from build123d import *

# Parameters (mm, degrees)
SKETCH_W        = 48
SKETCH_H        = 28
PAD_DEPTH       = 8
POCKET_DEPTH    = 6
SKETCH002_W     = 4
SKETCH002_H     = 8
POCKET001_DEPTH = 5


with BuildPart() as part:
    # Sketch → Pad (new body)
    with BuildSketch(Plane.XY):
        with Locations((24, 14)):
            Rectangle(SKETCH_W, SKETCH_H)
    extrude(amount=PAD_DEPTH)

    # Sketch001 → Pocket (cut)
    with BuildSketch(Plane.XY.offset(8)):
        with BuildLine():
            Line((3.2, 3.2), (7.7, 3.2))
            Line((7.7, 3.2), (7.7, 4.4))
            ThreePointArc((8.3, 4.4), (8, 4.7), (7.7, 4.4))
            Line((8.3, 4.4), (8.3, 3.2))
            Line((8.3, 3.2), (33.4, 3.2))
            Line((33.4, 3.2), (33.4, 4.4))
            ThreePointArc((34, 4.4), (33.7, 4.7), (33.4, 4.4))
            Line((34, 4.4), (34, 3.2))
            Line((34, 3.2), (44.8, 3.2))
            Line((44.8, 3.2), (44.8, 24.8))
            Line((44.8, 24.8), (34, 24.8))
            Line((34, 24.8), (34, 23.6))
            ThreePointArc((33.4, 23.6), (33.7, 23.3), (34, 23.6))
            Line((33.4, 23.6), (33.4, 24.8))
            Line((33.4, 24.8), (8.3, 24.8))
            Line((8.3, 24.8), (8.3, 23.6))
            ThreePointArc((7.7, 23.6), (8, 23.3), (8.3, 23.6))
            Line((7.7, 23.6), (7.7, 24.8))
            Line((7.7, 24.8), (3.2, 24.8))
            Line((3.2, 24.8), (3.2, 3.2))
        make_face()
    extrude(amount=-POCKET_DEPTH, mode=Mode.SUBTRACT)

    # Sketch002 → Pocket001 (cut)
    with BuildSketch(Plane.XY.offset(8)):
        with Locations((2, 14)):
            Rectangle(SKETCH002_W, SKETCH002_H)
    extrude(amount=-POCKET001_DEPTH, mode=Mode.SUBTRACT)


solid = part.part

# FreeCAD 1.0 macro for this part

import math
import FreeCAD as App
import Part
import Sketcher

V = App.Vector
Q = App.Units.Quantity


def add_polygon(sketch, points):
    """Adds a closed chain of lines whose ends are joined by coincident constraints."""
    first, n = sketch.GeometryCount, len(points)
    for a, b in zip(points, points[1:] + points[:1]):
        sketch.addGeometry(Part.LineSegment(App.Vector(*a, 0), App.Vector(*b, 0)), False)
    for i in range(n):
        sketch.addConstraint(Sketcher.Constraint("Coincident", first + i, 2, first + (i + 1) % n, 1))

doc = App.newDocument("Part")
body = doc.addObject("PartDesign::Body", "Body")

# Sketch on XY plane
sketch1 = doc.addObject("Sketcher::SketchObject", "Sketch")
body.addObject(sketch1)
sketch1.AttachmentSupport = (doc.XY_Plane, [""])
sketch1.MapMode = "FlatFace"
add_polygon(sketch1, [(0, 28), (0, 0), (48, 0), (48, 28)])  # lines 0-3
sketch1.addConstraint(Sketcher.Constraint("Vertical", 0))
sketch1.addConstraint(Sketcher.Constraint("Horizontal", 1))
sketch1.addConstraint(Sketcher.Constraint("Vertical", 2))
sketch1.addConstraint(Sketcher.Constraint("Horizontal", 3))
sketch1.addConstraint(Sketcher.Constraint("Coincident", 0, 2, -1, 1))
sketch1.addConstraint(Sketcher.Constraint("DistanceX", 1, 1, 1, 2, Q("48 mm")))
sketch1.addConstraint(Sketcher.Constraint("DistanceY", 0, 2, 0, 1, Q("28 mm")))
pad1 = doc.addObject("PartDesign::Pad", "Pad")
body.addObject(pad1)
pad1.Profile = sketch1
pad1.Length = 8

# Sketch on XY plane
sketch2 = doc.addObject("Sketcher::SketchObject", "Sketch001")
body.addObject(sketch2)
sketch2.AttachmentSupport = (doc.XY_Plane, [""])
sketch2.MapMode = "FlatFace"
sketch2.AttachmentOffset = App.Placement(V(0, 0, 8), App.Rotation())
sketch2.addGeometry(Part.LineSegment(V(3.2, 3.2, 0), V(7.7, 3.2, 0)), False)
sketch2.addGeometry(Part.LineSegment(V(7.7, 3.2, 0), V(7.7, 4.4, 0)), False)
sketch2.addGeometry(Part.ArcOfCircle(Part.Circle(V(8, 4.4, 0), V(0, 0, 1), 0.3), math.radians(0), math.radians(180)), False)
sketch2.addGeometry(Part.LineSegment(V(8.3, 4.4, 0), V(8.3, 3.2, 0)), False)
sketch2.addGeometry(Part.LineSegment(V(8.3, 3.2, 0), V(33.4, 3.2, 0)), False)
sketch2.addGeometry(Part.LineSegment(V(33.4, 3.2, 0), V(33.4, 4.4, 0)), False)
sketch2.addGeometry(Part.ArcOfCircle(Part.Circle(V(33.7, 4.4, 0), V(0, 0, 1), 0.3), math.radians(0), math.radians(180)), False)
sketch2.addGeometry(Part.LineSegment(V(34, 4.4, 0), V(34, 3.2, 0)), False)
sketch2.addGeometry(Part.LineSegment(V(34, 3.2, 0), V(44.8, 3.2, 0)), False)
sketch2.addGeometry(Part.LineSegment(V(44.8, 3.2, 0), V(44.8, 24.8, 0)), False)
sketch2.addGeometry(Part.LineSegment(V(44.8, 24.8, 0), V(34, 24.8, 0)), False)
sketch2.addGeometry(Part.LineSegment(V(34, 24.8, 0), V(34, 23.6, 0)), False)
sketch2.addGeometry(Part.ArcOfCircle(Part.Circle(V(33.7, 23.6, 0), V(0, 0, 1), 0.3), math.radians(180), math.radians(360)), False)
sketch2.addGeometry(Part.LineSegment(V(33.4, 23.6, 0), V(33.4, 24.8, 0)), False)
sketch2.addGeometry(Part.LineSegment(V(33.4, 24.8, 0), V(8.3, 24.8, 0)), False)
sketch2.addGeometry(Part.LineSegment(V(8.3, 24.8, 0), V(8.3, 23.6, 0)), False)
sketch2.addGeometry(Part.ArcOfCircle(Part.Circle(V(8, 23.6, 0), V(0, 0, 1), 0.3), math.radians(180), math.radians(360)), False)
sketch2.addGeometry(Part.LineSegment(V(7.7, 23.6, 0), V(7.7, 24.8, 0)), False)
sketch2.addGeometry(Part.LineSegment(V(7.7, 24.8, 0), V(3.2, 24.8, 0)), False)
sketch2.addGeometry(Part.LineSegment(V(3.2, 24.8, 0), V(3.2, 3.2, 0)), False)
sketch2.addConstraint(Sketcher.Constraint("Coincident", 0, 2, 1, 1))
sketch2.addConstraint(Sketcher.Constraint("Tangent", 1, 2, 2, 2))
sketch2.addConstraint(Sketcher.Constraint("Tangent", 2, 1, 3, 1))
sketch2.addConstraint(Sketcher.Constraint("Coincident", 3, 2, 4, 1))
sketch2.addConstraint(Sketcher.Constraint("Coincident", 4, 2, 5, 1))
sketch2.addConstraint(Sketcher.Constraint("Tangent", 5, 2, 6, 2))
sketch2.addConstraint(Sketcher.Constraint("Tangent", 6, 1, 7, 1))
sketch2.addConstraint(Sketcher.Constraint("Coincident", 7, 2, 8, 1))
sketch2.addConstraint(Sketcher.Constraint("Coincident", 8, 2, 9, 1))
sketch2.addConstraint(Sketcher.Constraint("Coincident", 9, 2, 10, 1))
sketch2.addConstraint(Sketcher.Constraint("Coincident", 10, 2, 11, 1))
sketch2.addConstraint(Sketcher.Constraint("Tangent", 11, 2, 12, 2))
sketch2.addConstraint(Sketcher.Constraint("Tangent", 12, 1, 13, 1))
sketch2.addConstraint(Sketcher.Constraint("Coincident", 13, 2, 14, 1))
sketch2.addConstraint(Sketcher.Constraint("Coincident", 14, 2, 15, 1))
sketch2.addConstraint(Sketcher.Constraint("Tangent", 15, 2, 16, 2))
sketch2.addConstraint(Sketcher.Constraint("Tangent", 16, 1, 17, 1))
sketch2.addConstraint(Sketcher.Constraint("Coincident", 17, 2, 18, 1))
sketch2.addConstraint(Sketcher.Constraint("Coincident", 18, 2, 19, 1))
sketch2.addConstraint(Sketcher.Constraint("Coincident", 19, 2, 0, 1))
sketch2.addConstraint(Sketcher.Constraint("Horizontal", 0))
sketch2.addConstraint(Sketcher.Constraint("Vertical", 1))
sketch2.addConstraint(Sketcher.Constraint("Vertical", 3))
sketch2.addConstraint(Sketcher.Constraint("Horizontal", 4))
sketch2.addConstraint(Sketcher.Constraint("Vertical", 5))
sketch2.addConstraint(Sketcher.Constraint("Vertical", 7))
sketch2.addConstraint(Sketcher.Constraint("Horizontal", 8))
sketch2.addConstraint(Sketcher.Constraint("Vertical", 9))
sketch2.addConstraint(Sketcher.Constraint("Horizontal", 10))
sketch2.addConstraint(Sketcher.Constraint("Vertical", 11))
sketch2.addConstraint(Sketcher.Constraint("Vertical", 13))
sketch2.addConstraint(Sketcher.Constraint("Horizontal", 14))
sketch2.addConstraint(Sketcher.Constraint("Vertical", 15))
sketch2.addConstraint(Sketcher.Constraint("Vertical", 17))
sketch2.addConstraint(Sketcher.Constraint("Horizontal", 18))
sketch2.addConstraint(Sketcher.Constraint("Vertical", 19))
sketch2.addConstraint(Sketcher.Constraint("Equal", 2, 6))
sketch2.addConstraint(Sketcher.Constraint("Equal", 6, 12))
sketch2.addConstraint(Sketcher.Constraint("Equal", 12, 16))
sketch2.addConstraint(Sketcher.Constraint("Horizontal", 2, 3, 6, 3))
sketch2.addConstraint(Sketcher.Constraint("Horizontal", 12, 3, 16, 3))
sketch2.addConstraint(Sketcher.Constraint("Horizontal", 0, 2, 3, 2))
sketch2.addConstraint(Sketcher.Constraint("Horizontal", 4, 2, 7, 2))
sketch2.addConstraint(Sketcher.Constraint("Horizontal", 10, 2, 13, 2))
sketch2.addConstraint(Sketcher.Constraint("Horizontal", 14, 2, 17, 2))
sketch2.addConstraint(Sketcher.Constraint("Vertical", 6, 3, 12, 3))
sketch2.addConstraint(Sketcher.Constraint("Vertical", 2, 3, 16, 3))
sketch2.addConstraint(Sketcher.Constraint("Equal", 7, 11))
sketch2.addConstraint(Sketcher.Constraint("Radius", 2, Q("0.3 mm")))
sketch2.addConstraint(Sketcher.Constraint("DistanceX", 0, 1, 0, 2, Q("4.5 mm")))
sketch2.addConstraint(Sketcher.Constraint("DistanceX", 4, 1, 4, 2, Q("25.1 mm")))
sketch2.addConstraint(Sketcher.Constraint("DistanceX", 8, 1, 8, 2, Q("10.8 mm")))
sketch2.addConstraint(Sketcher.Constraint("DistanceY", 1, 1, 1, 2, Q("1.2 mm")))
sketch2.addConstraint(Sketcher.Constraint("DistanceY", 9, 1, 9, 2, Q("21.6 mm")))
sketch2.addConstraint(Sketcher.Constraint("DistanceX", -1, 1, 2, 3, Q("8 mm")))
sketch2.addConstraint(Sketcher.Constraint("DistanceY", -1, 1, 2, 3, Q("4.4 mm")))
pocket1 = doc.addObject("PartDesign::Pocket", "Pocket")
body.addObject(pocket1)
pocket1.Profile = sketch2
pocket1.Length = 6

# Sketch on XY plane
sketch3 = doc.addObject("Sketcher::SketchObject", "Sketch002")
body.addObject(sketch3)
sketch3.AttachmentSupport = (doc.XY_Plane, [""])
sketch3.MapMode = "FlatFace"
sketch3.AttachmentOffset = App.Placement(V(0, 0, 8), App.Rotation())
add_polygon(sketch3, [(0, 18), (0, 10), (4, 10), (4, 18)])  # lines 0-3
sketch3.addConstraint(Sketcher.Constraint("Vertical", 0))
sketch3.addConstraint(Sketcher.Constraint("Horizontal", 1))
sketch3.addConstraint(Sketcher.Constraint("Vertical", 2))
sketch3.addConstraint(Sketcher.Constraint("Horizontal", 3))
sketch3.addConstraint(Sketcher.Constraint("PointOnObject", 0, 2, -2))
sketch3.addConstraint(Sketcher.Constraint("DistanceX", 1, 1, 1, 2, Q("4 mm")))
sketch3.addConstraint(Sketcher.Constraint("DistanceY", 0, 2, 0, 1, Q("8 mm")))
sketch3.addConstraint(Sketcher.Constraint("DistanceY", -1, 1, 0, 2, Q("10 mm")))
pocket2 = doc.addObject("PartDesign::Pocket", "Pocket001")
body.addObject(pocket2)
pocket2.Profile = sketch3
pocket2.Length = 5

doc.recompute()
